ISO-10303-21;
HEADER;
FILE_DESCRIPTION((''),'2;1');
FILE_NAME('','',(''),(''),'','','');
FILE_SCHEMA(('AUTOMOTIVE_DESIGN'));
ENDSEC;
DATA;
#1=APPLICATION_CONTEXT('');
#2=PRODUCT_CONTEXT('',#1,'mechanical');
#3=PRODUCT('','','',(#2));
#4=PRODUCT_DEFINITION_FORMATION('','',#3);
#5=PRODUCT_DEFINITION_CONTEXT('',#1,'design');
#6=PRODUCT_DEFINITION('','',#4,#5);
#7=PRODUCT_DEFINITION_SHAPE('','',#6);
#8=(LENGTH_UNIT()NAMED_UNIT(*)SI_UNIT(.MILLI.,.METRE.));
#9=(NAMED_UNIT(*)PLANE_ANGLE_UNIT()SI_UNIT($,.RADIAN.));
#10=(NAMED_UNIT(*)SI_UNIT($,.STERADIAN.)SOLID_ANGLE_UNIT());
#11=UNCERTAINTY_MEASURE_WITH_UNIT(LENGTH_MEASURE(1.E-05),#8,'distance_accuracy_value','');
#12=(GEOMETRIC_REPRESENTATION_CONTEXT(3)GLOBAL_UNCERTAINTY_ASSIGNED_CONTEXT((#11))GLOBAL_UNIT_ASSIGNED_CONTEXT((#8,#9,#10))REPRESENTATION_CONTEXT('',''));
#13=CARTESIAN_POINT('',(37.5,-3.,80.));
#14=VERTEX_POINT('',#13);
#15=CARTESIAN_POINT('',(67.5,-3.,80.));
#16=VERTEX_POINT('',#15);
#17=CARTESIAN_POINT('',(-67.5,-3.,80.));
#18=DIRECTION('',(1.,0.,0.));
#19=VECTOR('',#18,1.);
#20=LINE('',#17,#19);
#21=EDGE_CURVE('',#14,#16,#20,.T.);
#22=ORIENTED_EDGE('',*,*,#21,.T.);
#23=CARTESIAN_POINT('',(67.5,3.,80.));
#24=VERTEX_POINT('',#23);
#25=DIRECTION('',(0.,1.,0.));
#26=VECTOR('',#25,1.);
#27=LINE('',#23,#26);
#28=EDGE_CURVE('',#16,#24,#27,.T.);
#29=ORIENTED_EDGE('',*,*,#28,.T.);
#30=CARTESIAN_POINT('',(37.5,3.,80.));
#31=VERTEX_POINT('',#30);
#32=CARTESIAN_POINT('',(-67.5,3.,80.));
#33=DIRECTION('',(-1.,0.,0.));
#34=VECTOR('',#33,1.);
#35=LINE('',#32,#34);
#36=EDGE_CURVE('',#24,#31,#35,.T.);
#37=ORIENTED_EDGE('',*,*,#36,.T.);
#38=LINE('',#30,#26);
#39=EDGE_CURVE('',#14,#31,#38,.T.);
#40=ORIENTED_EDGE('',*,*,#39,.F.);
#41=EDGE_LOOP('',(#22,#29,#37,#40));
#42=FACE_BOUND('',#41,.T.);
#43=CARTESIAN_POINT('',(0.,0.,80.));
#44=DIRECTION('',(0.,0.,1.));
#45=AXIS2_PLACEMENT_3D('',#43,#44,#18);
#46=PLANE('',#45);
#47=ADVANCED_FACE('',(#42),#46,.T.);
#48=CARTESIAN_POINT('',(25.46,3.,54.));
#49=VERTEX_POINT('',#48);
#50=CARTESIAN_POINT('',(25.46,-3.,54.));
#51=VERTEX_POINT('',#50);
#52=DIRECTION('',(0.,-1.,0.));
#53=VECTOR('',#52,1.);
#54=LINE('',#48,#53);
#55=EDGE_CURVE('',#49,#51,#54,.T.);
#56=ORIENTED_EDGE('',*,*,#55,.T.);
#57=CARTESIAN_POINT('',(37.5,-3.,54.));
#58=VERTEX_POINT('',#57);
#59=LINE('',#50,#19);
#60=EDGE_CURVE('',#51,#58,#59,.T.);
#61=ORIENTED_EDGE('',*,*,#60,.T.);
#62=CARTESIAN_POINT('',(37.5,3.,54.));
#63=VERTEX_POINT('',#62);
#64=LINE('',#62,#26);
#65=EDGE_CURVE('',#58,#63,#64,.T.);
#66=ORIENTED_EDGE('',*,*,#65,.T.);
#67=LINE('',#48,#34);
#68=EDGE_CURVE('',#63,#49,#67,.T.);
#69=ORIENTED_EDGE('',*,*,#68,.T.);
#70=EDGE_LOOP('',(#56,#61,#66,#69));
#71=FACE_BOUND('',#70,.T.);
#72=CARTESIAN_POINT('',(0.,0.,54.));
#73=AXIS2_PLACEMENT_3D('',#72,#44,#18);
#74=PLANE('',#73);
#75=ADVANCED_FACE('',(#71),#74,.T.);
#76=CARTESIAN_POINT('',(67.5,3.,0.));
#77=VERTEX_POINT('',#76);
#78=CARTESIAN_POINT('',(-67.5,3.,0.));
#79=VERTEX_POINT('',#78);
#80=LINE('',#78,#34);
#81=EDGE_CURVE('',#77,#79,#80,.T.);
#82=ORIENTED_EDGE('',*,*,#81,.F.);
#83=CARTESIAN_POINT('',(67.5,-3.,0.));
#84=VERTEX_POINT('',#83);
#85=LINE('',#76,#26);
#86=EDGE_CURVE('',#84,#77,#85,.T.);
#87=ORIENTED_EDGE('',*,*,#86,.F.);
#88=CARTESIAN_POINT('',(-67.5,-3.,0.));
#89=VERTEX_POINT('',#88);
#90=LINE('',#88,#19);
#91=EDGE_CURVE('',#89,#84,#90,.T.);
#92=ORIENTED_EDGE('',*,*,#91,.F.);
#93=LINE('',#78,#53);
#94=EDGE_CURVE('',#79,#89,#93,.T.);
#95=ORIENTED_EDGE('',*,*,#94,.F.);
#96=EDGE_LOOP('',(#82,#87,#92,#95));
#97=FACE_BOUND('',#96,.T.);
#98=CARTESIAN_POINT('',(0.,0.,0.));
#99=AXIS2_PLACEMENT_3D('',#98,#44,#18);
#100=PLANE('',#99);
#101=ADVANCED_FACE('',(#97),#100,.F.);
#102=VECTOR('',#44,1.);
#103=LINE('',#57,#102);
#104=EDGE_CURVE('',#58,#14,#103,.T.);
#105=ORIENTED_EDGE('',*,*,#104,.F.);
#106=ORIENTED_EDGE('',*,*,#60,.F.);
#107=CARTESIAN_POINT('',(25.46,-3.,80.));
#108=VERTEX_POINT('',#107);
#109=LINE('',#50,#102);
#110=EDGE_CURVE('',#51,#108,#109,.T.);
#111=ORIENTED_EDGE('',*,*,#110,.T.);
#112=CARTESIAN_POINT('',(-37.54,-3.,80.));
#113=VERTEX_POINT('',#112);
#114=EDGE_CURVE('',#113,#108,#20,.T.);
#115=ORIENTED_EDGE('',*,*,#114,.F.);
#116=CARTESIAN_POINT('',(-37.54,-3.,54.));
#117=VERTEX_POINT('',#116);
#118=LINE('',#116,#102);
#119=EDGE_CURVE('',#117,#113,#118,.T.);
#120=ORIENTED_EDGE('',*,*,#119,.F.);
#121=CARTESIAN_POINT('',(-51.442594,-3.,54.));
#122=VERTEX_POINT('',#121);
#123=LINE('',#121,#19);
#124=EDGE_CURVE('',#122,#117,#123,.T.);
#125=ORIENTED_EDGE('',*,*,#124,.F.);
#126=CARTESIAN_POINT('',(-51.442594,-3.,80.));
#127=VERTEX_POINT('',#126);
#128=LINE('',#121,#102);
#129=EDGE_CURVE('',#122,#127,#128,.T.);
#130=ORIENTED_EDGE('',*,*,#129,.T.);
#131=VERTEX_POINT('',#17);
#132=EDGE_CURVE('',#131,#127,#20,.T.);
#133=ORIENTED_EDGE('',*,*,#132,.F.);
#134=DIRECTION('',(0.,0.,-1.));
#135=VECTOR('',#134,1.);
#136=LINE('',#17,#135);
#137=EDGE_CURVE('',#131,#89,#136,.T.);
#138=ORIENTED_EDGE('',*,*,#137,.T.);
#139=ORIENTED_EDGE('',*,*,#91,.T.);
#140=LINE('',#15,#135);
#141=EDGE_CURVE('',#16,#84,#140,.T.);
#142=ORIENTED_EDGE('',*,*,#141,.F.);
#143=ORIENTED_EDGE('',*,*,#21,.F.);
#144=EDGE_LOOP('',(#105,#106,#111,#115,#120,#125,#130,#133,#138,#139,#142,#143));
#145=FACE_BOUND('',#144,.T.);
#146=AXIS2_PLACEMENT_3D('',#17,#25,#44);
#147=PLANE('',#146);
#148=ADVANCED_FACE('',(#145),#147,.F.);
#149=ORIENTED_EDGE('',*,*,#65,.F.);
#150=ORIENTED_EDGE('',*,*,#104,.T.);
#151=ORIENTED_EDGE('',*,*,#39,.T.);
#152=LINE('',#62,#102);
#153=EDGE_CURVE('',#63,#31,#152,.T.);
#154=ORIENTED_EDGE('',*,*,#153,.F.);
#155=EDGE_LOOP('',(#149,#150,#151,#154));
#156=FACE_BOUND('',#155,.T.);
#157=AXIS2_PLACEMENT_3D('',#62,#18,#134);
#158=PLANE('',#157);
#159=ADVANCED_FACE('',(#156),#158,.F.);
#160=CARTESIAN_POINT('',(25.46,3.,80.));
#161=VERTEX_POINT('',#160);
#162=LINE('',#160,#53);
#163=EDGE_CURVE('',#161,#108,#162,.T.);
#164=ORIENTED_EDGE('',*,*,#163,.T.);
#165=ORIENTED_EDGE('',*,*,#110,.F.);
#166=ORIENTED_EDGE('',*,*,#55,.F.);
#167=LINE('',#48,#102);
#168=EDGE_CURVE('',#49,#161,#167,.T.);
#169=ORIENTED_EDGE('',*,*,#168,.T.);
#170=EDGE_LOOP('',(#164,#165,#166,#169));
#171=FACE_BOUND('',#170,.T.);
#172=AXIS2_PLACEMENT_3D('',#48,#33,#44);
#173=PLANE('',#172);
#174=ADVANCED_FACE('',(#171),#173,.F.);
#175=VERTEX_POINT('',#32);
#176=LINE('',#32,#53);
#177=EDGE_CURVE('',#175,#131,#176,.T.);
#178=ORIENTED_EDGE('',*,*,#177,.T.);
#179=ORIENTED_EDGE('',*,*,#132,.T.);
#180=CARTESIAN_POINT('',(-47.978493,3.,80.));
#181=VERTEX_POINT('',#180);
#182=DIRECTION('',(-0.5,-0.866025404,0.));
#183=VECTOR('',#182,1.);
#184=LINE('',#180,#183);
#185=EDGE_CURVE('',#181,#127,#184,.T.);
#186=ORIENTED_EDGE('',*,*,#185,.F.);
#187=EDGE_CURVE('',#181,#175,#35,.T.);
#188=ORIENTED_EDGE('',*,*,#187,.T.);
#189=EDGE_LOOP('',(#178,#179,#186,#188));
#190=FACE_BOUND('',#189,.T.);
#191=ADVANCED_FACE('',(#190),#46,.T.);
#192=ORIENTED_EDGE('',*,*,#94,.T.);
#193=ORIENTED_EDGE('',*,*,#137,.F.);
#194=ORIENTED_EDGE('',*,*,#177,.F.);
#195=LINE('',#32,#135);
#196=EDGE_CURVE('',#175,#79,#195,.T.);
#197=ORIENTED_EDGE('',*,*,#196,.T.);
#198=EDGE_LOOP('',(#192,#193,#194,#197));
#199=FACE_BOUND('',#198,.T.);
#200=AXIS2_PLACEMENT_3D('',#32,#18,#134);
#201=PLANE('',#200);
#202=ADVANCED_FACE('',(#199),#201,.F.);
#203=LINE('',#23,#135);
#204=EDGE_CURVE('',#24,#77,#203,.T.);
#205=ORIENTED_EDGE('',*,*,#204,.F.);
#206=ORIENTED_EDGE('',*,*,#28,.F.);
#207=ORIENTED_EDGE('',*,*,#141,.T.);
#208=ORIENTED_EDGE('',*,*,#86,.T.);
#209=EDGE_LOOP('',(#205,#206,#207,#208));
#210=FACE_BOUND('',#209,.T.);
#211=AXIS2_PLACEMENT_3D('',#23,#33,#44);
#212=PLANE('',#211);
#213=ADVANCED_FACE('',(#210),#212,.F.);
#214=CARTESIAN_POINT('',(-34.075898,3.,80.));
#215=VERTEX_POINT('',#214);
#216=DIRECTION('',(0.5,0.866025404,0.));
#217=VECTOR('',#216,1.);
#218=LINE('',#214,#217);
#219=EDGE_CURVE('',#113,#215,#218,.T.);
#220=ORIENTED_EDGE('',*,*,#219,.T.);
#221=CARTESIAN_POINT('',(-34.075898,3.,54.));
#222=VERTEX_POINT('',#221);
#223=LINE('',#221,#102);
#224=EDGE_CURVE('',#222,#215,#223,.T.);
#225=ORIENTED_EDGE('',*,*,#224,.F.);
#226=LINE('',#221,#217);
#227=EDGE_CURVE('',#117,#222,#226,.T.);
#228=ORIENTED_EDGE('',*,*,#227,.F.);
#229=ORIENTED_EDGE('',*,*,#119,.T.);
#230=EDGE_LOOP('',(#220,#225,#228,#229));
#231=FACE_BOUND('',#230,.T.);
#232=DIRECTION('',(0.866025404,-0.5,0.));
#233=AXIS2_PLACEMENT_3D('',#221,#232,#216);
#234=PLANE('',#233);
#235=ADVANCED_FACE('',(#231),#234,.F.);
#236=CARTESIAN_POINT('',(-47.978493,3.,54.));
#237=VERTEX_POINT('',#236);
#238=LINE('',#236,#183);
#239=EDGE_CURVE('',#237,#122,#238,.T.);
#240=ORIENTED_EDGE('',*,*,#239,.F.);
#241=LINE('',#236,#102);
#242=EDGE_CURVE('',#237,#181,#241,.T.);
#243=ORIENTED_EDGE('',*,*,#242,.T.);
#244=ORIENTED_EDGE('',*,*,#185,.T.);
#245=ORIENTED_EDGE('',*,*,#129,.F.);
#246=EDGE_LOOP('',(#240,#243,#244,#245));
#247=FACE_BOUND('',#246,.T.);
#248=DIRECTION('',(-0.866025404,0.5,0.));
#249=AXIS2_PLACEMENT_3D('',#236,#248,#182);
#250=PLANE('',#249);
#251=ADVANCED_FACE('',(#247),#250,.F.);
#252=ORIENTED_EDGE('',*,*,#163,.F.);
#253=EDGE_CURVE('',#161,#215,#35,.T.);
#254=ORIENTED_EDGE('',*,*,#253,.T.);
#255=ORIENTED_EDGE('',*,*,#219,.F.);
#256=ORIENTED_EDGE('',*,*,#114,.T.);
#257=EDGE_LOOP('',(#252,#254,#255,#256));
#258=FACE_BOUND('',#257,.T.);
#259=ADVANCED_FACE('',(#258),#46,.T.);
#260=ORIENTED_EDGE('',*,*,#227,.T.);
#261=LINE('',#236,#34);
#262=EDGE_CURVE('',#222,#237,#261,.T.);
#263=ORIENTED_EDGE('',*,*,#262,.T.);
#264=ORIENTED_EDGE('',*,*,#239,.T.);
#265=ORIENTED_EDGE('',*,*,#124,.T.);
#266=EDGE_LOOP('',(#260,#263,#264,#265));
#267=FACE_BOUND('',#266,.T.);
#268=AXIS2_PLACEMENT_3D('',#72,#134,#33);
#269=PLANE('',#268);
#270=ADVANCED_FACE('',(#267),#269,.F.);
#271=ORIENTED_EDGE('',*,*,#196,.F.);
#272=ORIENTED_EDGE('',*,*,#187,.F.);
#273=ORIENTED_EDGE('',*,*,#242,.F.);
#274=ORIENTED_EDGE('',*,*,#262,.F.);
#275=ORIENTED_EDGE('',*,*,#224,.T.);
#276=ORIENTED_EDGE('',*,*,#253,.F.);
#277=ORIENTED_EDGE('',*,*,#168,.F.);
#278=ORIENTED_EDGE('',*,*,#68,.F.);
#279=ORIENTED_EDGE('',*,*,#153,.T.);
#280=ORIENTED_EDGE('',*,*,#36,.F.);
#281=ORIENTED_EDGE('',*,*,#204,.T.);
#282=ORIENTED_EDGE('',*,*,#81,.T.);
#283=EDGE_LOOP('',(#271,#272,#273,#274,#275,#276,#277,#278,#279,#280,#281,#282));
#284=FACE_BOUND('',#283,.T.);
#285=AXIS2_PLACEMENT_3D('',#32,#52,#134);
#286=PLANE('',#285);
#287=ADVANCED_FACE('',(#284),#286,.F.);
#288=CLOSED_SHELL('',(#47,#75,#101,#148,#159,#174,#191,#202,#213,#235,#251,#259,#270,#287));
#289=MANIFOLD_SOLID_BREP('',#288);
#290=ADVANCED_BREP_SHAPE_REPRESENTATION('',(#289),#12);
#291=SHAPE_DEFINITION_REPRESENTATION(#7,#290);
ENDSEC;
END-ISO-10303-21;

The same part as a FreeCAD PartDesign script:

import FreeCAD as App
import Part
import Sketcher
from FreeCAD import Vector
Q = App.Units.Quantity

doc = App.newDocument("Part")
body = doc.addObject("PartDesign::Body", "Body")

sketch1 = body.newObject("Sketcher::SketchObject", "Sketch")
sketch1.AttachmentSupport = (doc.getObject("XY_Plane"), [""])
sketch1.MapMode = "FlatFace"
sketch1.addGeometry([
    Part.LineSegment(Vector(-68, 3, 0), Vector(-68, -3, 0)),
    Part.LineSegment(Vector(-68, -3, 0), Vector(68, -3, 0)),
    Part.LineSegment(Vector(68, -3, 0), Vector(68, 3, 0)),
    Part.LineSegment(Vector(68, 3, 0), Vector(-68, 3, 0)),
], False)
sketch1.addConstraint([
    Sketcher.Constraint("Coincident", 0, 2, 1, 1),
    Sketcher.Constraint("Coincident", 1, 2, 2, 1),
    Sketcher.Constraint("Coincident", 2, 2, 3, 1),
    Sketcher.Constraint("Coincident", 3, 2, 0, 1),
    Sketcher.Constraint("Vertical", 0),
    Sketcher.Constraint("Horizontal", 1),
    Sketcher.Constraint("Vertical", 2),
    Sketcher.Constraint("Horizontal", 3),
    Sketcher.Constraint("Symmetric", 0, 2, 2, 2, -1, 1),
    Sketcher.Constraint("DistanceX", 1, 1, 1, 2, 135.0),
    Sketcher.Constraint("DistanceY", 0, 2, 0, 1, 6.0),
])
pad1 = body.newObject("PartDesign::Pad", "Pad")
pad1.Profile = sketch1
pad1.Length = 80

sketch2 = body.newObject("Sketcher::SketchObject", "Sketch001")
sketch2.AttachmentSupport = (doc.getObject("XY_Plane"), [""])
sketch2.MapMode = "FlatFace"
sketch2.AttachmentOffset = App.Placement(Vector(0, 0, 80), App.Rotation())
sketch2.addGeometry([
    Part.LineSegment(Vector(25, 3, 0), Vector(25, -3, 0)),
    Part.LineSegment(Vector(25, -3, 0), Vector(38, -3, 0)),
    Part.LineSegment(Vector(38, -3, 0), Vector(38, 3, 0)),
    Part.LineSegment(Vector(38, 3, 0), Vector(25, 3, 0)),
    Part.LineSegment(Vector(-38, -3, 0), Vector(-34, 3, 0)),
    Part.LineSegment(Vector(-34, 3, 0), Vector(-48, 3, 0)),
    Part.LineSegment(Vector(-48, 3, 0), Vector(-51, -3, 0)),
    Part.LineSegment(Vector(-51, -3, 0), Vector(-38, -3, 0)),
], False)
sketch2.addConstraint([
    Sketcher.Constraint("Coincident", 0, 2, 1, 1),
    Sketcher.Constraint("Coincident", 1, 2, 2, 1),
    Sketcher.Constraint("Coincident", 2, 2, 3, 1),
    Sketcher.Constraint("Coincident", 3, 2, 0, 1),
    Sketcher.Constraint("Coincident", 4, 2, 5, 1),
    Sketcher.Constraint("Coincident", 5, 2, 6, 1),
    Sketcher.Constraint("Coincident", 6, 2, 7, 1),
    Sketcher.Constraint("Coincident", 7, 2, 4, 1),
    Sketcher.Constraint("Vertical", 0),
    Sketcher.Constraint("Horizontal", 1),
    Sketcher.Constraint("Vertical", 2),
    Sketcher.Constraint("Horizontal", 3),
    Sketcher.Constraint("Horizontal", 5),
    Sketcher.Constraint("Horizontal", 7),
    Sketcher.Constraint("Parallel", 4, 6),
    Sketcher.Constraint("Horizontal", 3, 2, 4, 2),
    Sketcher.Constraint("Horizontal", 1, 2, 6, 2),
    Sketcher.Constraint("DistanceY", 0, 2, 0, 1, 6.0),
    Sketcher.Constraint("Angle", 4, Q("60 deg")),
    Sketcher.Constraint("DistanceY", 0, 2, -1, 1, 3.0),
    Sketcher.Constraint("DistanceX", 7, 2, 0, 2, 63.0),
    Sketcher.Constraint("DistanceX", 1, 1, 1, 2, 12.04),
    Sketcher.Constraint("DistanceX", -1, 1, 1, 2, 37.5),
    Sketcher.Constraint("DistanceX", 5, 2, 5, 1, 13.902594),
])
pocket1 = body.newObject("PartDesign::Pocket", "Pocket")
pocket1.Profile = sketch2
pocket1.Length = 26

doc.recompute()
